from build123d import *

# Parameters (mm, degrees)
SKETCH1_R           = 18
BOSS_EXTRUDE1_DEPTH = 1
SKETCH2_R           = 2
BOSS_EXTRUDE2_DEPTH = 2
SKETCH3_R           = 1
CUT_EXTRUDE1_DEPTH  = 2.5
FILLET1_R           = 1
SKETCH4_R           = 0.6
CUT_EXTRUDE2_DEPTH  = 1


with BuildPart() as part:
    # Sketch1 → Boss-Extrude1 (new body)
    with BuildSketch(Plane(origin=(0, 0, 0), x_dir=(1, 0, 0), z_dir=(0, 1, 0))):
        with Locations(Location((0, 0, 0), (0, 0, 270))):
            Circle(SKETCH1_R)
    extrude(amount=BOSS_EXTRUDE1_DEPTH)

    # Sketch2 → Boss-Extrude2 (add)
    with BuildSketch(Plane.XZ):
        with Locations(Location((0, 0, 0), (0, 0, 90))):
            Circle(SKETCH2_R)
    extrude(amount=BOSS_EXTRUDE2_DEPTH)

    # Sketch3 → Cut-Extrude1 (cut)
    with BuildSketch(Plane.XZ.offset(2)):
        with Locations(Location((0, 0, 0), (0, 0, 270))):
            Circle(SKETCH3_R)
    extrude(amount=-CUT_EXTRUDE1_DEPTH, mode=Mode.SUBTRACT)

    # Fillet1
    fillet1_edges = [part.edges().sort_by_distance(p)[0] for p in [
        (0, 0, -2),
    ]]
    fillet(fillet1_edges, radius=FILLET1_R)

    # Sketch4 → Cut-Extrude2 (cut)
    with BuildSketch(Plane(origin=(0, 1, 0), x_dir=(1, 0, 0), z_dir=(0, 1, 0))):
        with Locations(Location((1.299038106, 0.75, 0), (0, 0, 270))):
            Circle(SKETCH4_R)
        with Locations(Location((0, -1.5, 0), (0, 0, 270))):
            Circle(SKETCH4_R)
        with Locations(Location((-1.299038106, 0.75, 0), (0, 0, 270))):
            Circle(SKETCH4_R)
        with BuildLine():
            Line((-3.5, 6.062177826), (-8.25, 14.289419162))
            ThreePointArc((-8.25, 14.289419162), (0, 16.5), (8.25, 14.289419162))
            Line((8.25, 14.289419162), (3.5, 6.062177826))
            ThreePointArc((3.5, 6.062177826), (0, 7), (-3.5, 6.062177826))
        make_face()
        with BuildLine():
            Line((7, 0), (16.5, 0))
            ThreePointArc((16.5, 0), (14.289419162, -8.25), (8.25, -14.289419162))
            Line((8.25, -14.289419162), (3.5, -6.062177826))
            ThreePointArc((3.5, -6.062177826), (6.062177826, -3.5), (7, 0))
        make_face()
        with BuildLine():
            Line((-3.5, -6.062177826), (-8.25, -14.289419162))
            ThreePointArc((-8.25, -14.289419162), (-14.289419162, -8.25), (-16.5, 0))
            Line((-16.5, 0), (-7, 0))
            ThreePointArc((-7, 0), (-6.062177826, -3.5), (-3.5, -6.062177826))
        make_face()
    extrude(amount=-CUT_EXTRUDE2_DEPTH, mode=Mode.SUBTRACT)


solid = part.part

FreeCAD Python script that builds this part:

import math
import FreeCAD as App
import Part
import Sketcher

V = App.Vector
Q = App.Units.Quantity


def edges_at(feature, points):
    """Names of the edges that pass closest to the given points."""
    edges = feature.Shape.Edges
    near = lambda p: min(range(len(edges)), key=lambda i: edges[i].distToShape(Part.Vertex(*p))[0])
    return sorted({f"Edge{near(p) + 1}" for p in points})

doc = App.newDocument("Part")
params = doc.addObject("Spreadsheet::Sheet", "Params")
for row, (alias, value) in enumerate([
    ("sketch1_diameter", "36 mm"),
    ("pad1_length", "1 mm"),
    ("sketch2_diameter", "4 mm"),
    ("pad2_length", "2 mm"),
    ("sketch3_diameter", "2 mm"),
    ("pocket1_length", "2.5 mm"),
    ("fillet_radius", "1 mm"),
    ("sketch4_radius", "7 mm"),
    ("sketch4_diameter", "1.2 mm"),
    ("sketch4_radius2", "16.5 mm"),
    ("pocket2_length", "1 mm"),
], start=1):
    params.set(f"A{row}", alias)
    params.set(f"B{row}", "=" + value)
    params.setAlias(f"B{row}", alias)

body = doc.addObject("PartDesign::Body", "Body")

sketch1 = body.newObject("Sketcher::SketchObject", "Sketch")
sketch1.AttachmentSupport = (doc.getObject("XZ_Plane"), [""])
sketch1.MapMode = "FlatFace"
sketch1.addGeometry(Part.Circle(V(0, 0, 0), V(0, 0, 1), 18), False)
sketch1.addConstraint(Sketcher.Constraint("Coincident", 0, 3, -1, 1))
sketch1.addConstraint(Sketcher.Constraint("Diameter", 0, 36.0))
sketch1.setExpression("Constraints[1]", "Params.sketch1_diameter")
pad1 = body.newObject("PartDesign::Pad", "Pad")
pad1.Profile = sketch1
pad1.setExpression("Length", "Params.pad1_length")
pad1.Reversed = True

sketch2 = body.newObject("Sketcher::SketchObject", "Sketch001")
sketch2.AttachmentSupport = (doc.getObject("XZ_Plane"), [""])
sketch2.MapMode = "FlatFace"
sketch2.addGeometry(Part.Circle(V(0, 0, 0), V(0, 0, 1), 2), False)
sketch2.addConstraint(Sketcher.Constraint("Coincident", 0, 3, -1, 1))
sketch2.addConstraint(Sketcher.Constraint("Diameter", 0, 4.0))
sketch2.setExpression("Constraints[1]", "Params.sketch2_diameter")
pad2 = body.newObject("PartDesign::Pad", "Pad001")
pad2.Profile = sketch2
pad2.setExpression("Length", "Params.pad2_length")

sketch3 = body.newObject("Sketcher::SketchObject", "Sketch002")
sketch3.AttachmentSupport = (doc.getObject("XZ_Plane"), [""])
sketch3.MapMode = "FlatFace"
sketch3.AttachmentOffset = App.Placement(V(0, 0, 2), App.Rotation())
sketch3.addGeometry(Part.Circle(V(0, 0, 0), V(0, 0, 1), 1), False)
sketch3.addConstraint(Sketcher.Constraint("Coincident", 0, 3, -1, 1))
sketch3.addConstraint(Sketcher.Constraint("Diameter", 0, 2.0))
sketch3.setExpression("Constraints[1]", "Params.sketch3_diameter")
pocket1 = body.newObject("PartDesign::Pocket", "Pocket")
pocket1.Profile = sketch3
pocket1.setExpression("Length", "Params.pocket1_length")
doc.recompute()

fillet = body.newObject("PartDesign::Fillet", "Fillet")
fillet.Base = (pocket1, edges_at(pocket1, [(0, 0, -2)]))
fillet.setExpression("Radius", "Params.fillet_radius")

sketch4 = body.newObject("Sketcher::SketchObject", "Sketch003")
sketch4.AttachmentSupport = (doc.getObject("XZ_Plane"), [""])
sketch4.MapMode = "FlatFace"
sketch4.AttachmentOffset = App.Placement(V(0, 0, -1), App.Rotation())
sketch4.addGeometry(Part.Circle(V(1.3, -0.8, 0), V(0, 0, 1), 0.6), False)
sketch4.addGeometry(Part.Circle(V(0, 1.5, 0), V(0, 0, 1), 0.6), False)
sketch4.addGeometry(Part.Circle(V(-1.3, -0.8, 0), V(0, 0, 1), 0.6), False)
sketch4.addGeometry(Part.LineSegment(V(-8.2, -14.3, 0), V(-3.5, -6.1, 0)), False)
sketch4.addGeometry(Part.ArcOfCircle(Part.Circle(V(0, 0, 0), V(0, 0, 1), 7), math.radians(-120), math.radians(-60)), False)
sketch4.addGeometry(Part.LineSegment(V(3.5, -6.1, 0), V(8.2, -14.3, 0)), False)
sketch4.addGeometry(Part.ArcOfCircle(Part.Circle(V(0, 0, 0), V(0, 0, 1), 16.5), math.radians(-120), math.radians(-60)), False)
sketch4.addGeometry(Part.LineSegment(V(16.5, 0, 0), V(7, 0, 0)), False)
sketch4.addGeometry(Part.ArcOfCircle(Part.Circle(V(0, 0, 0), V(0, 0, 1), 7), math.radians(0), math.radians(60)), False)
sketch4.addGeometry(Part.LineSegment(V(3.5, 6.1, 0), V(8.2, 14.3, 0)), False)
sketch4.addGeometry(Part.ArcOfCircle(Part.Circle(V(0, 0, 0), V(0, 0, 1), 16.5), math.radians(0), math.radians(60)), False)
sketch4.addGeometry(Part.LineSegment(V(-8.2, 14.3, 0), V(-3.5, 6.1, 0)), False)
sketch4.addGeometry(Part.ArcOfCircle(Part.Circle(V(0, 0, 0), V(0, 0, 1), 7), math.radians(120), math.radians(180)), False)
sketch4.addGeometry(Part.LineSegment(V(-7, 0, 0), V(-16.5, 0, 0)), False)
sketch4.addGeometry(Part.ArcOfCircle(Part.Circle(V(0, 0, 0), V(0, 0, 1), 16.5), math.radians(120), math.radians(180)), False)
sketch4.addConstraint(Sketcher.Constraint("Coincident", 3, 2, 4, 1))
sketch4.addConstraint(Sketcher.Constraint("Coincident", 4, 2, 5, 1))
sketch4.addConstraint(Sketcher.Constraint("Coincident", 5, 2, 6, 2))
sketch4.addConstraint(Sketcher.Constraint("Coincident", 6, 1, 3, 1))
sketch4.addConstraint(Sketcher.Constraint("Coincident", 7, 2, 8, 1))
sketch4.addConstraint(Sketcher.Constraint("Coincident", 8, 2, 9, 1))
sketch4.addConstraint(Sketcher.Constraint("Coincident", 9, 2, 10, 2))
sketch4.addConstraint(Sketcher.Constraint("Coincident", 10, 1, 7, 1))
sketch4.addConstraint(Sketcher.Constraint("Coincident", 11, 2, 12, 1))
sketch4.addConstraint(Sketcher.Constraint("Coincident", 12, 2, 13, 1))
sketch4.addConstraint(Sketcher.Constraint("Coincident", 13, 2, 14, 2))
sketch4.addConstraint(Sketcher.Constraint("Coincident", 14, 1, 11, 1))
sketch4.addConstraint(Sketcher.Constraint("Horizontal", 7))
sketch4.addConstraint(Sketcher.Constraint("Horizontal", 13))
sketch4.addConstraint(Sketcher.Constraint("Coincident", 4, 3, -1, 1))
sketch4.addConstraint(Sketcher.Constraint("Coincident", 6, 3, -1, 1))
sketch4.addConstraint(Sketcher.Constraint("Coincident", 8, 3, -1, 1))
sketch4.addConstraint(Sketcher.Constraint("Coincident", 10, 3, -1, 1))
sketch4.addConstraint(Sketcher.Constraint("Coincident", 12, 3, -1, 1))
sketch4.addConstraint(Sketcher.Constraint("Coincident", 14, 3, -1, 1))
sketch4.addConstraint(Sketcher.Constraint("Equal", 0, 1))
sketch4.addConstraint(Sketcher.Constraint("Equal", 1, 2))
sketch4.addConstraint(Sketcher.Constraint("Equal", 4, 8))
sketch4.addConstraint(Sketcher.Constraint("Equal", 6, 10))
sketch4.addConstraint(Sketcher.Constraint("Equal", 8, 12))
sketch4.addConstraint(Sketcher.Constraint("Equal", 10, 14))
sketch4.addConstraint(Sketcher.Constraint("Symmetric", 0, 3, 2, 3, -2))
sketch4.addConstraint(Sketcher.Constraint("PointOnObject", 1, 3, -2))
sketch4.addConstraint(Sketcher.Constraint("PointOnObject", 7, 2, -1))
sketch4.addConstraint(Sketcher.Constraint("PointOnObject", 12, 2, -1))
sketch4.addConstraint(Sketcher.Constraint("Parallel", 3, 9))
sketch4.addConstraint(Sketcher.Constraint("Parallel", 5, 11))
sketch4.addConstraint(Sketcher.Constraint("Horizontal", 3, 2, 4, 2))
sketch4.addConstraint(Sketcher.Constraint("Horizontal", 5, 2, 6, 1))
sketch4.addConstraint(Sketcher.Constraint("Horizontal", 8, 2, 11, 2))
sketch4.addConstraint(Sketcher.Constraint("Vertical", 4, 2, 8, 2))
sketch4.addConstraint(Sketcher.Constraint("Radius", 4, 7.0))
sketch4.addConstraint(Sketcher.Constraint("Diameter", 0, 1.2))
sketch4.addConstraint(Sketcher.Constraint("Radius", 6, 16.5))
sketch4.addConstraint(Sketcher.Constraint("Angle", 3, Q("60 deg")))
sketch4.addConstraint(Sketcher.Constraint("DistanceX", 8, 2, 10, 1, 13.0))
sketch4.addConstraint(Sketcher.Constraint("DistanceY", -1, 1, 1, 3, 1.5))
sketch4.addConstraint(Sketcher.Constraint("DistanceY", 0, 3, -1, 1, 0.75))
sketch4.addConstraint(Sketcher.Constraint("DistanceX", -1, 1, 0, 3, 1.299038))
sketch4.setExpression("Constraints[36]", "Params.sketch4_radius")
sketch4.setExpression("Constraints[37]", "Params.sketch4_diameter")
sketch4.setExpression("Constraints[38]", "Params.sketch4_radius2")
pocket2 = body.newObject("PartDesign::Pocket", "Pocket001")
pocket2.Profile = sketch4
pocket2.setExpression("Length", "Params.pocket2_length")
pocket2.Reversed = True

doc.recompute()
